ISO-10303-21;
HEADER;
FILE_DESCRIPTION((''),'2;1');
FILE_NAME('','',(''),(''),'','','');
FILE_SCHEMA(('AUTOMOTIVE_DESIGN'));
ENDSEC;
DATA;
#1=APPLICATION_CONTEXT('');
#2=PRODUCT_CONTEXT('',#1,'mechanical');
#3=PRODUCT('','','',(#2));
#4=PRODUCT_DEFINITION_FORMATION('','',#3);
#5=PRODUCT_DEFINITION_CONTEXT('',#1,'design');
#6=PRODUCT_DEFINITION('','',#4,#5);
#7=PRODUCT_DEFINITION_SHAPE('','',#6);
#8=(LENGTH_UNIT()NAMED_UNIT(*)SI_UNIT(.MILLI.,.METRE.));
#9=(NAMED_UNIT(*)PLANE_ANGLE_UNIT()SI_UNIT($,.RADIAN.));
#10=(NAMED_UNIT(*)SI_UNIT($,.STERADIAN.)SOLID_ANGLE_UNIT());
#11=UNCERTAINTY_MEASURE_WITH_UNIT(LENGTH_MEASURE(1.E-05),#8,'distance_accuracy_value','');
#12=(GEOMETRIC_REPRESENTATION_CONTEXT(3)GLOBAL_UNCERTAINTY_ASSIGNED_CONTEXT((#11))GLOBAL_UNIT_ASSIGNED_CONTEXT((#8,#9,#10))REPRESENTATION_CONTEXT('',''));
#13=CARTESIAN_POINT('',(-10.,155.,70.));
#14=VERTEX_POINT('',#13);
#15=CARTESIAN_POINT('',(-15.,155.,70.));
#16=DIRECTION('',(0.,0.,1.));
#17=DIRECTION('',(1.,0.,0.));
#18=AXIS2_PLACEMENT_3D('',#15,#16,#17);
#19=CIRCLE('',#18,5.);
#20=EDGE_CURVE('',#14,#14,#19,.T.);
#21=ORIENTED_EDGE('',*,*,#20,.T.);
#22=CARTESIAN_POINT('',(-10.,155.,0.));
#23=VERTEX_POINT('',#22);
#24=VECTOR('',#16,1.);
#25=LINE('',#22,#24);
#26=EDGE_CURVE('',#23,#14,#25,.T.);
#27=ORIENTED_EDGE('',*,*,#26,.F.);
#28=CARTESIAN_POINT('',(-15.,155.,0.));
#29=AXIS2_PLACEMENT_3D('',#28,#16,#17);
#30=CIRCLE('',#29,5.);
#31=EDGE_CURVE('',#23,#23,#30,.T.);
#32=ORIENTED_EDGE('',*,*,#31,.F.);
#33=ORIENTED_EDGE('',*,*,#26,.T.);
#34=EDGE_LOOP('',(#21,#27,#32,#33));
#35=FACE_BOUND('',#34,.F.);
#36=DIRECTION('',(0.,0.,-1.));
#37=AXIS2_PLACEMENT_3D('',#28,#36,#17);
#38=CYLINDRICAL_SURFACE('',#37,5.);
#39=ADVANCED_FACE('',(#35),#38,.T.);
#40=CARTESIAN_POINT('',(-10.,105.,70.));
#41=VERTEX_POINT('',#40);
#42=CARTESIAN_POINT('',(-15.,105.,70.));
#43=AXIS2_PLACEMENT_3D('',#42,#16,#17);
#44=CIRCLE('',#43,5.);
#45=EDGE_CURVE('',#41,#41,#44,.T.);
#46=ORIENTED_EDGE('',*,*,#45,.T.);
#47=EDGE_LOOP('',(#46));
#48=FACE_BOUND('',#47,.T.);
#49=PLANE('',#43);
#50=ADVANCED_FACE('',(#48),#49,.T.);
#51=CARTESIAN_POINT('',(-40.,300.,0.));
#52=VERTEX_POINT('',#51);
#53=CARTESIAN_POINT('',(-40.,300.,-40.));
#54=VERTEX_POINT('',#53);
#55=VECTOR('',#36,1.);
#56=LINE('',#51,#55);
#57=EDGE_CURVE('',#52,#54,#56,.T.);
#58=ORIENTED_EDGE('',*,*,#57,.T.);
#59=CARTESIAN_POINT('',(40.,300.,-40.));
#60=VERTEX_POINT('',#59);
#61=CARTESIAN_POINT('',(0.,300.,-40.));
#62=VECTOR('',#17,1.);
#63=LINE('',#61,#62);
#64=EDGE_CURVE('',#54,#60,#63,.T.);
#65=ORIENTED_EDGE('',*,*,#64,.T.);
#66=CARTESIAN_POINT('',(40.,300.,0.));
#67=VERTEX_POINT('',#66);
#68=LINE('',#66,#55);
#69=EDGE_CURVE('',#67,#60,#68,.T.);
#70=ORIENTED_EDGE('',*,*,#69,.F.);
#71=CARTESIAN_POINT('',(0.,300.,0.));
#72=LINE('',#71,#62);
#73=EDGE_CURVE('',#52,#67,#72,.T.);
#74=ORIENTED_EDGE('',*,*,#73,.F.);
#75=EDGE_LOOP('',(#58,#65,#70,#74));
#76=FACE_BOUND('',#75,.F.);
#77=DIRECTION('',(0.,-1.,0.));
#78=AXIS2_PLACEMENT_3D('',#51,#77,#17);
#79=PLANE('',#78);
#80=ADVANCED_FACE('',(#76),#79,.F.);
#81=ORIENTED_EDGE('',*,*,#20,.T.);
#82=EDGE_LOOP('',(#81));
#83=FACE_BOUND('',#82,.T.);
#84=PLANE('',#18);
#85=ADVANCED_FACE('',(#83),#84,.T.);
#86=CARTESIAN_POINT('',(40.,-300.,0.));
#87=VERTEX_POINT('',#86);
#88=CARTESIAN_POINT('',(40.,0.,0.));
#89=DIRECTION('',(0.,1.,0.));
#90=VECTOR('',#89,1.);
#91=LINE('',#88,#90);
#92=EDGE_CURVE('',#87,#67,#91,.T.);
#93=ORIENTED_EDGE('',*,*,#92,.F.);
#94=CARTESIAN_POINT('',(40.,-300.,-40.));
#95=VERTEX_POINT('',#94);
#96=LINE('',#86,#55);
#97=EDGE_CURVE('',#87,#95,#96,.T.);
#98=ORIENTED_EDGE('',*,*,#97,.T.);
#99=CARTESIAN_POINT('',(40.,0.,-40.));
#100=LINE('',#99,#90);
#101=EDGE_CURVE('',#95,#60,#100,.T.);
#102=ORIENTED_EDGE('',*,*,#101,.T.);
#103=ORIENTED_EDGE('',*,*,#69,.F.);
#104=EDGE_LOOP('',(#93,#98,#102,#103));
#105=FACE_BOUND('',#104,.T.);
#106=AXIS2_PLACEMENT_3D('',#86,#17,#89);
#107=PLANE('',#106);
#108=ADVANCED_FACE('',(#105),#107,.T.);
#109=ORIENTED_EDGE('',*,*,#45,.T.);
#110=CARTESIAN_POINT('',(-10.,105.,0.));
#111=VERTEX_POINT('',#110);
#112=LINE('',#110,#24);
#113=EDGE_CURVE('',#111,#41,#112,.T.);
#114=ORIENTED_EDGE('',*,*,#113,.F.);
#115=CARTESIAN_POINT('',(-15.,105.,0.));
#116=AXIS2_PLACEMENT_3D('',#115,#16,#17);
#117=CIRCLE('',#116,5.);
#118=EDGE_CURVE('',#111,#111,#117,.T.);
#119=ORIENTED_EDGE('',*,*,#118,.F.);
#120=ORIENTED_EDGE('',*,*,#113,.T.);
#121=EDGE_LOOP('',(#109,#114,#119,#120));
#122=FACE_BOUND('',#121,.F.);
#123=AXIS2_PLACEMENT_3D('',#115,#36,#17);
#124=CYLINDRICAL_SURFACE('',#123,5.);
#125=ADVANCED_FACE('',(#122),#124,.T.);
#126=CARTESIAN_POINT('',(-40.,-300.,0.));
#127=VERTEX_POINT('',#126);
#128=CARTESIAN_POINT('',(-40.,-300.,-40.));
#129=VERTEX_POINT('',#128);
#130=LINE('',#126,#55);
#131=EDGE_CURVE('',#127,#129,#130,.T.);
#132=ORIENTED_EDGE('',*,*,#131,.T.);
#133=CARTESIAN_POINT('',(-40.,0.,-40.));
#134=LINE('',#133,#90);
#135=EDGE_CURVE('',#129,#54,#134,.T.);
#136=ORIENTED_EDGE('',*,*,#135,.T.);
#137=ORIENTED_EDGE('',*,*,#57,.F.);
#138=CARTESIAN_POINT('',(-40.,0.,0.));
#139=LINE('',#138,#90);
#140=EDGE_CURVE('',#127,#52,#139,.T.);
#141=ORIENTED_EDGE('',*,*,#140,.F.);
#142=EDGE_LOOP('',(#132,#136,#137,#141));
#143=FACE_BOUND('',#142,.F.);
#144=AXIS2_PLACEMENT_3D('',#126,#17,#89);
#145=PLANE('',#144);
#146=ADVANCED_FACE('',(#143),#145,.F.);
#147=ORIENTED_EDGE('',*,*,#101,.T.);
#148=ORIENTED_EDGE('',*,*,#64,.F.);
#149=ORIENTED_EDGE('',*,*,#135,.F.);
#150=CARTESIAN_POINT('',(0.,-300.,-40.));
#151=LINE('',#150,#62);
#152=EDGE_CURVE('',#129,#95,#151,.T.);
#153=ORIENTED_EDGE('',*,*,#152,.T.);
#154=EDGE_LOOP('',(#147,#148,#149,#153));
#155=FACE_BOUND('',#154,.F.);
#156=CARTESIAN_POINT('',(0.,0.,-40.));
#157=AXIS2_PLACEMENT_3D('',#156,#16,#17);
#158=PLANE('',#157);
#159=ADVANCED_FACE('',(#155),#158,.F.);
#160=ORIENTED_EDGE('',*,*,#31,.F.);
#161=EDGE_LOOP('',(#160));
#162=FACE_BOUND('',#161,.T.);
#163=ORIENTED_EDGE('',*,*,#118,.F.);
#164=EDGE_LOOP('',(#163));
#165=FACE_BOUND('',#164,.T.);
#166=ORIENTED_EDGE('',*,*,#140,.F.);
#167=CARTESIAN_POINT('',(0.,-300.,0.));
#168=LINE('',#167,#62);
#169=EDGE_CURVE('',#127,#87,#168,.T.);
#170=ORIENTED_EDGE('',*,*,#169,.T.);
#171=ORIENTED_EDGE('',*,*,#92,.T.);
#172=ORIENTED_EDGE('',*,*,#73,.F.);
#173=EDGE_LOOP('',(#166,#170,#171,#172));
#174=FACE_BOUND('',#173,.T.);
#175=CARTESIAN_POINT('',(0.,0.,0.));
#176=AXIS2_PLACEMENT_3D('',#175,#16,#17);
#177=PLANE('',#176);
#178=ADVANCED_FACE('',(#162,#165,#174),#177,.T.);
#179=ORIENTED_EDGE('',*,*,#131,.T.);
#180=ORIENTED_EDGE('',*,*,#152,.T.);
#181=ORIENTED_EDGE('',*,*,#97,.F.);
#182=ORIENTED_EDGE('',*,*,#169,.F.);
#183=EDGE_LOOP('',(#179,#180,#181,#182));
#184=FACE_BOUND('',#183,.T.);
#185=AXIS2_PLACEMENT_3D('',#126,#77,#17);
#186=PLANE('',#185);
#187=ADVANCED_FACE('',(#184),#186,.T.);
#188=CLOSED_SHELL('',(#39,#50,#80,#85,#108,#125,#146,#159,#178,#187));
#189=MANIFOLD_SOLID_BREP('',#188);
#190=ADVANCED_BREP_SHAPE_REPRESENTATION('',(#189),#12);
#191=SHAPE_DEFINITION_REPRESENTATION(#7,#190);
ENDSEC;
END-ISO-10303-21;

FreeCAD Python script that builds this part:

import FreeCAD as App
import Part
import Sketcher

V = App.Vector
Q = App.Units.Quantity


def add_polygon(sketch, points):
    """Adds a closed chain of lines whose ends are joined by coincident constraints."""
    first, n = sketch.GeometryCount, len(points)
    for a, b in zip(points, points[1:] + points[:1]):
        sketch.addGeometry(Part.LineSegment(App.Vector(*a, 0), App.Vector(*b, 0)), False)
    for i in range(n):
        sketch.addConstraint(Sketcher.Constraint("Coincident", first + i, 2, first + (i + 1) % n, 1))

doc = App.newDocument("Part")
body = doc.addObject("PartDesign::Body", "Body")

# Sketch on XY plane
sketch1 = body.newObject("Sketcher::SketchObject", "Sketch")
sketch1.AttachmentSupport = (doc.getObject("XY_Plane"), [""])
sketch1.MapMode = "FlatFace"
add_polygon(sketch1, [(-40, 300), (-40, -300), (40, -300), (40, 300)])  # lines 0-3
sketch1.addConstraint([
    Sketcher.Constraint("Vertical", 0),
    Sketcher.Constraint("Horizontal", 1),
    Sketcher.Constraint("Vertical", 2),
    Sketcher.Constraint("Horizontal", 3),
    Sketcher.Constraint("Symmetric", 0, 2, 2, 2, -1, 1),
    Sketcher.Constraint("DistanceX", 1, 1, 1, 2, Q("80 mm")),
    Sketcher.Constraint("DistanceY", 0, 2, 0, 1, Q("600 mm")),
])
pad1 = body.newObject("PartDesign::Pad", "Pad")
pad1.Profile = sketch1
pad1.Length = 40
pad1.Reversed = True

# Sketch on XY plane
sketch2 = body.newObject("Sketcher::SketchObject", "Sketch001")
sketch2.AttachmentSupport = (doc.getObject("XY_Plane"), [""])
sketch2.MapMode = "FlatFace"
sketch2.addGeometry([
    Part.Circle(V(-15, 155, 0), V(0, 0, 1), 5),
    Part.Circle(V(-15, 105, 0), V(0, 0, 1), 5),
], False)
sketch2.addConstraint([
    Sketcher.Constraint("Equal", 0, 1),
    Sketcher.Constraint("Vertical", 0, 3, 1, 3),
    Sketcher.Constraint("Diameter", 0, Q("10 mm")),
    Sketcher.Constraint("DistanceX", 0, 3, -1, 1, Q("15 mm")),
    Sketcher.Constraint("DistanceY", -1, 1, 0, 3, Q("155 mm")),
    Sketcher.Constraint("DistanceY", -1, 1, 1, 3, Q("105 mm")),
])
pad2 = body.newObject("PartDesign::Pad", "Pad001")
pad2.Profile = sketch2
pad2.Length = 70

doc.recompute()
